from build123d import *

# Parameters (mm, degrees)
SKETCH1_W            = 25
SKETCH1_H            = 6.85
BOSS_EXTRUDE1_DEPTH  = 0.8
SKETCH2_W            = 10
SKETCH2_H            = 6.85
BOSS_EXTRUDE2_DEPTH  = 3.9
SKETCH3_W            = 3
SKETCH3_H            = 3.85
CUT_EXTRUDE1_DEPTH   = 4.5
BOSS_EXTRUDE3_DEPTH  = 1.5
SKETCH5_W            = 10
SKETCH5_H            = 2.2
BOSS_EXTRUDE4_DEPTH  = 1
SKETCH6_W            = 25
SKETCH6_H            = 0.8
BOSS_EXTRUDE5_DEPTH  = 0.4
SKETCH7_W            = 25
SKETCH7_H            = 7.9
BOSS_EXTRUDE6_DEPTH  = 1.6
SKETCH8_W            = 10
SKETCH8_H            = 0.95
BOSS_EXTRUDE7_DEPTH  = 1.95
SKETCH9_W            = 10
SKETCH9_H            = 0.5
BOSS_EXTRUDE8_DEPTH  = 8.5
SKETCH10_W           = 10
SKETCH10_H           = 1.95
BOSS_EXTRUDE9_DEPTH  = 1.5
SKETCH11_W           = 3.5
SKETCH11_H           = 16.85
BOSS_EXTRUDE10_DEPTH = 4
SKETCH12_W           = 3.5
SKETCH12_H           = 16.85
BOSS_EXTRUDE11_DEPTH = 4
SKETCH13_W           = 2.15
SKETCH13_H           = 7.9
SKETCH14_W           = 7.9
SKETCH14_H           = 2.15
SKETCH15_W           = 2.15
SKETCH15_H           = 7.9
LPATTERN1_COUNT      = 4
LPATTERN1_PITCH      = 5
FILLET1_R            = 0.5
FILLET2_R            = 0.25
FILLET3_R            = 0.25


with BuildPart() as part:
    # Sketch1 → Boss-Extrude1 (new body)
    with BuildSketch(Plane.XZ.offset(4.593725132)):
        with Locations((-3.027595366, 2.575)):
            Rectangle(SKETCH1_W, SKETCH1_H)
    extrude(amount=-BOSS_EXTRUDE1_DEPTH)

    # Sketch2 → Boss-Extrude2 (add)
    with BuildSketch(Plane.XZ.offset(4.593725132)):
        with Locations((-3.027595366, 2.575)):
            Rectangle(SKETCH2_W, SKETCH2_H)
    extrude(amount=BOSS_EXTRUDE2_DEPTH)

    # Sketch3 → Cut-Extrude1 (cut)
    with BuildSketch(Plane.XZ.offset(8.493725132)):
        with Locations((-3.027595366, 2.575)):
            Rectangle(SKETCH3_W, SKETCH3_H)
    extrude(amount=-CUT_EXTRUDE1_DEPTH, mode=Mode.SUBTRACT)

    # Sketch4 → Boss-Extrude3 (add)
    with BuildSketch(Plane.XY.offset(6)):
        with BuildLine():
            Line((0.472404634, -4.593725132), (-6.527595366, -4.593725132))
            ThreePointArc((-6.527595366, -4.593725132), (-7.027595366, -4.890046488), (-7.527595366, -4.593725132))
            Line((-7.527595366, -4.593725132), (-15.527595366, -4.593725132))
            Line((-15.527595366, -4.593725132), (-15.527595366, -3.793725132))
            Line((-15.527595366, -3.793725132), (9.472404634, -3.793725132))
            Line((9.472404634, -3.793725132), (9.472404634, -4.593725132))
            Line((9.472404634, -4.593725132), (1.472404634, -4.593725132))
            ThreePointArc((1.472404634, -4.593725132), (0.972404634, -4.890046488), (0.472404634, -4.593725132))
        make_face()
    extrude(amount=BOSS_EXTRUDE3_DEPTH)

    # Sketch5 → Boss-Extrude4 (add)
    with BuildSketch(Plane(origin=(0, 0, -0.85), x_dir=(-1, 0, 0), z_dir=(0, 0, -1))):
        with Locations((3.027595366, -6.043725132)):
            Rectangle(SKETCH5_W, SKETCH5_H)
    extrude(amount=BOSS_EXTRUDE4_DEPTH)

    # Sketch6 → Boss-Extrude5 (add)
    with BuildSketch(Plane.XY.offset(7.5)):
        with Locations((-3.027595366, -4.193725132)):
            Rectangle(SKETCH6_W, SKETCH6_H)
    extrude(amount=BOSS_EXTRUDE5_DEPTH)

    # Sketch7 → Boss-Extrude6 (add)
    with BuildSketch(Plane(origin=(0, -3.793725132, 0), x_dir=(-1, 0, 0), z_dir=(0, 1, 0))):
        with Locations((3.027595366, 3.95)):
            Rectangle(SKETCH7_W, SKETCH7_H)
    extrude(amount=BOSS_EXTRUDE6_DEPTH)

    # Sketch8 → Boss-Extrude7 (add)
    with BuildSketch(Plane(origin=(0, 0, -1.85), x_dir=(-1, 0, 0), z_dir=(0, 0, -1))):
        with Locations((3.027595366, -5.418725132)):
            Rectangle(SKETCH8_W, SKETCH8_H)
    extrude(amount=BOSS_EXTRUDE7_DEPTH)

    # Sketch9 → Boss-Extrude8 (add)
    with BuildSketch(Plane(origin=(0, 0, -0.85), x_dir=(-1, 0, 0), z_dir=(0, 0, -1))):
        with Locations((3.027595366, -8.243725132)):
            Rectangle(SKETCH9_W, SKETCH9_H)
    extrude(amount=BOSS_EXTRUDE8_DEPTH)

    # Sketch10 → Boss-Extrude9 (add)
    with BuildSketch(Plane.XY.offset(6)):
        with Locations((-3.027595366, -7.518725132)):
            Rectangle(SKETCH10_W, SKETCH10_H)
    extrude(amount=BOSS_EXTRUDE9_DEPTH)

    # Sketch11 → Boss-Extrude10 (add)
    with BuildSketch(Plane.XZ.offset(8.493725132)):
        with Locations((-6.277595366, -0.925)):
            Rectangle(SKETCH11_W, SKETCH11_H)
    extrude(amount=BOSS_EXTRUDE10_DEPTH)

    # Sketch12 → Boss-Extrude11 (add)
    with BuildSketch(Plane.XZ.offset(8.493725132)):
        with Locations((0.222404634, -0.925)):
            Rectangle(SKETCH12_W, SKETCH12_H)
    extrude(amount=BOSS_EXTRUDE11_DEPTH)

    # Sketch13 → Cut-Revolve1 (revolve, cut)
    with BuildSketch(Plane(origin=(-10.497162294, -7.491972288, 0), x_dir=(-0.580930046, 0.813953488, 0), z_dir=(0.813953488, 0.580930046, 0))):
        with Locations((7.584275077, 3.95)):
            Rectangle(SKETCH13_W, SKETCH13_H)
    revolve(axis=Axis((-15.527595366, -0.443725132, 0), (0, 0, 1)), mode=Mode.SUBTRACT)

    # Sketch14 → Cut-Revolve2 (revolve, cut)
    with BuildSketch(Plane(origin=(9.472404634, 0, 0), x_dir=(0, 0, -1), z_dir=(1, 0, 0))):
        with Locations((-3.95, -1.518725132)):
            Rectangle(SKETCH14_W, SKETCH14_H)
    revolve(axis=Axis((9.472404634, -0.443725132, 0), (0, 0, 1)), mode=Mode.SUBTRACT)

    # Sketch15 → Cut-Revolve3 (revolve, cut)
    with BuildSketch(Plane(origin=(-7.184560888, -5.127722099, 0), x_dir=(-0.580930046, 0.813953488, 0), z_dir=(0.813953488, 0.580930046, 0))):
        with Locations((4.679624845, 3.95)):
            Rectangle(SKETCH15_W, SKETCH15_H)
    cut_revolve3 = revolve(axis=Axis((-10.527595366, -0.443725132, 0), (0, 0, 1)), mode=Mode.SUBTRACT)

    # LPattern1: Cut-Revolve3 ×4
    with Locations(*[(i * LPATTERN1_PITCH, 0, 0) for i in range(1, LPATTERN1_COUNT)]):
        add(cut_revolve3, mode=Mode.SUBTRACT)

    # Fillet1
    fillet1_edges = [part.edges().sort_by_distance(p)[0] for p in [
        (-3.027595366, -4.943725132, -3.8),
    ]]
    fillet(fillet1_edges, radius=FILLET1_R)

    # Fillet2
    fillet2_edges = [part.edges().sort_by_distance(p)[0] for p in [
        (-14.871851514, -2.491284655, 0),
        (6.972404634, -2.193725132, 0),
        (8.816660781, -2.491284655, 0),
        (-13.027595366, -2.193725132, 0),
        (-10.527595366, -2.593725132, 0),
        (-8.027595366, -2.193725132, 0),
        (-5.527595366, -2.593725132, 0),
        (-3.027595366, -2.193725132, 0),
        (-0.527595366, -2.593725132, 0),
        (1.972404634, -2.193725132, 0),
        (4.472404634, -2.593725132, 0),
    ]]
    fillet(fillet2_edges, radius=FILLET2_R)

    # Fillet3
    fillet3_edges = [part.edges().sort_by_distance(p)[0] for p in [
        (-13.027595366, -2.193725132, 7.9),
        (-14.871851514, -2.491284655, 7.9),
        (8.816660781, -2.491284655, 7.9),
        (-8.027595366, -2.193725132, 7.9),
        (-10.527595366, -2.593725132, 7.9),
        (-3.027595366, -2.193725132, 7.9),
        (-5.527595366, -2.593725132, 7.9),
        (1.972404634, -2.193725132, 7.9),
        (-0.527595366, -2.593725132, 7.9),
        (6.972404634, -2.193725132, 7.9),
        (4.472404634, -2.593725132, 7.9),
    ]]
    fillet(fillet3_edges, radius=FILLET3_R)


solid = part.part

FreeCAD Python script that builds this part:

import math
import FreeCAD as App
import Part
import Sketcher

V = App.Vector
Q = App.Units.Quantity


def edges_at(feature, points):
    """Names of the edges that pass closest to the given points."""
    edges = feature.Shape.Edges
    near = lambda p: min(range(len(edges)), key=lambda i: edges[i].distToShape(Part.Vertex(*p))[0])
    return sorted({f"Edge{near(p) + 1}" for p in points})


def add_polygon(sketch, points):
    """Adds a closed chain of lines whose ends are joined by coincident constraints."""
    first, n = sketch.GeometryCount, len(points)
    for a, b in zip(points, points[1:] + points[:1]):
        sketch.addGeometry(Part.LineSegment(App.Vector(*a, 0), App.Vector(*b, 0)), False)
    for i in range(n):
        sketch.addConstraint(Sketcher.Constraint("Coincident", first + i, 2, first + (i + 1) % n, 1))

doc = App.newDocument("Part")
body = doc.addObject("PartDesign::Body", "Body")

sketch1 = body.newObject("Sketcher::SketchObject", "Sketch")
sketch1.AttachmentSupport = (doc.getObject("XZ_Plane"), [""])
sketch1.MapMode = "FlatFace"
sketch1.AttachmentOffset = App.Placement(V(0, 0, 4.593725), App.Rotation())
add_polygon(sketch1, [(-15.527595, 6), (-15.527595, -0.85), (9.472405, -0.85), (9.472405, 6)])
sketch1.addConstraint([
    Sketcher.Constraint("Vertical", 0),
    Sketcher.Constraint("Horizontal", 1),
    Sketcher.Constraint("Vertical", 2),
    Sketcher.Constraint("Horizontal", 3),
    Sketcher.Constraint("DistanceX", 1, 1, 1, 2, Q("25 mm")),
    Sketcher.Constraint("DistanceY", -1, 1, 2, 2, Q("6 mm")),
    Sketcher.Constraint("DistanceY", 0, 2, 0, 1, Q("6.85 mm")),
    Sketcher.Constraint("DistanceX", 0, 2, -1, 1, Q("15.527595 mm")),
])
pad1 = body.newObject("PartDesign::Pad", "Pad")
pad1.Profile = sketch1
pad1.Length = 0.8
pad1.Reversed = True

sketch2 = body.newObject("Sketcher::SketchObject", "Sketch001")
sketch2.AttachmentSupport = (doc.getObject("XZ_Plane"), [""])
sketch2.MapMode = "FlatFace"
sketch2.AttachmentOffset = App.Placement(V(0, 0, 4.593725), App.Rotation())
add_polygon(sketch2, [(-8.027595, 6), (-8.027595, -0.85), (1.972405, -0.85), (1.972405, 6)])
sketch2.addConstraint([
    Sketcher.Constraint("Vertical", 0),
    Sketcher.Constraint("Horizontal", 1),
    Sketcher.Constraint("Vertical", 2),
    Sketcher.Constraint("Horizontal", 3),
    Sketcher.Constraint("DistanceX", 1, 1, 1, 2, Q("10 mm")),
    Sketcher.Constraint("DistanceY", -1, 1, 2, 2, Q("6 mm")),
    Sketcher.Constraint("DistanceY", 0, 2, 0, 1, Q("6.85 mm")),
    Sketcher.Constraint("DistanceX", 0, 2, -1, 1, Q("8.027595 mm")),
])
pad2 = body.newObject("PartDesign::Pad", "Pad001")
pad2.Profile = sketch2
pad2.Length = 3.9

sketch3 = body.newObject("Sketcher::SketchObject", "Sketch002")
sketch3.AttachmentSupport = (doc.getObject("XZ_Plane"), [""])
sketch3.MapMode = "FlatFace"
sketch3.AttachmentOffset = App.Placement(V(0, 0, 8.493725), App.Rotation())
add_polygon(sketch3, [(-4.527595, 4.5), (-4.527595, 0.65), (-1.527595, 0.65), (-1.527595, 4.5)])
sketch3.addConstraint([
    Sketcher.Constraint("Vertical", 0),
    Sketcher.Constraint("Horizontal", 1),
    Sketcher.Constraint("Vertical", 2),
    Sketcher.Constraint("Horizontal", 3),
    Sketcher.Constraint("DistanceX", 1, 1, 1, 2, Q("3 mm")),
    Sketcher.Constraint("DistanceY", 0, 2, 0, 1, Q("3.85 mm")),
    Sketcher.Constraint("DistanceY", -1, 1, 2, 2, Q("4.5 mm")),
    Sketcher.Constraint("DistanceX", 0, 2, -1, 1, Q("4.527595 mm")),
])
pocket1 = body.newObject("PartDesign::Pocket", "Pocket")
pocket1.Profile = sketch3
pocket1.Length = 4.5

sketch4 = body.newObject("Sketcher::SketchObject", "Sketch003")
sketch4.AttachmentSupport = (doc.getObject("XY_Plane"), [""])
sketch4.MapMode = "FlatFace"
sketch4.AttachmentOffset = App.Placement(V(0, 0, 6), App.Rotation())
sketch4.addGeometry([
    Part.LineSegment(V(-6.527595, -4.593725, 0), V(0.472405, -4.593725, 0)),
    Part.ArcOfCircle(Part.Circle(V(0.972405, -4.320046, 0), V(0, 0, 1), 0.57), math.radians(-151.305586), math.radians(-28.694414)),
    Part.LineSegment(V(1.472405, -4.593725, 0), V(9.472405, -4.593725, 0)),
    Part.LineSegment(V(9.472405, -4.593725, 0), V(9.472405, -3.793725, 0)),
    Part.LineSegment(V(9.472405, -3.793725, 0), V(-15.527595, -3.793725, 0)),
    Part.LineSegment(V(-15.527595, -3.793725, 0), V(-15.527595, -4.593725, 0)),
    Part.LineSegment(V(-15.527595, -4.593725, 0), V(-7.527595, -4.593725, 0)),
    Part.ArcOfCircle(Part.Circle(V(-7.027595, -4.320046, 0), V(0, 0, 1), 0.57), math.radians(-151.305586), math.radians(-28.694414)),
], False)
sketch4.addConstraint([
    Sketcher.Constraint("Coincident", 0, 2, 1, 1),
    Sketcher.Constraint("Coincident", 1, 2, 2, 1),
    Sketcher.Constraint("Coincident", 2, 2, 3, 1),
    Sketcher.Constraint("Coincident", 3, 2, 4, 1),
    Sketcher.Constraint("Coincident", 4, 2, 5, 1),
    Sketcher.Constraint("Coincident", 5, 2, 6, 1),
    Sketcher.Constraint("Coincident", 6, 2, 7, 1),
    Sketcher.Constraint("Coincident", 7, 2, 0, 1),
    Sketcher.Constraint("Horizontal", 0),
    Sketcher.Constraint("Horizontal", 2),
    Sketcher.Constraint("Vertical", 3),
    Sketcher.Constraint("Horizontal", 4),
    Sketcher.Constraint("Vertical", 5),
    Sketcher.Constraint("Horizontal", 6),
    Sketcher.Constraint("Equal", 1, 7),
    Sketcher.Constraint("Horizontal", 1, 3, 7, 3),
    Sketcher.Constraint("Horizontal", 0, 2, 1, 2),
    Sketcher.Constraint("Horizontal", 2, 2, 5, 2),
    Sketcher.Constraint("Equal", 2, 6),
    Sketcher.Constraint("DistanceX", 0, 1, 0, 2, Q("7 mm")),
    Sketcher.Constraint("DistanceX", 2, 1, 2, 2, Q("8 mm")),
    Sketcher.Constraint("DistanceX", 4, 2, 4, 1, Q("25 mm")),
    Sketcher.Constraint("Radius", 1, Q("0.57 mm")),
    Sketcher.Constraint("DistanceY", 3, 1, 3, 2, Q("0.8 mm")),
    Sketcher.Constraint("DistanceX", -1, 1, 1, 3, Q("0.972405 mm")),
    Sketcher.Constraint("DistanceY", 1, 3, -1, 1, Q("4.320046 mm")),
])
pad3 = body.newObject("PartDesign::Pad", "Pad002")
pad3.Profile = sketch4
pad3.Length = 1.5

sketch5 = body.newObject("Sketcher::SketchObject", "Sketch004")
sketch5.AttachmentSupport = (doc.getObject("XY_Plane"), [""])
sketch5.MapMode = "FlatFace"
sketch5.AttachmentOffset = App.Placement(V(0, 0, -0.85), App.Rotation())
add_polygon(sketch5, [(1.972405, -4.943725), (1.972405, -7.143725), (-8.027595, -7.143725), (-8.027595, -4.943725)])
sketch5.addConstraint([
    Sketcher.Constraint("Vertical", 0),
    Sketcher.Constraint("Horizontal", 1),
    Sketcher.Constraint("Vertical", 2),
    Sketcher.Constraint("Horizontal", 3),
    Sketcher.Constraint("DistanceX", 1, 2, 1, 1, Q("10 mm")),
    Sketcher.Constraint("DistanceY", 0, 2, 0, 1, Q("2.2 mm")),
    Sketcher.Constraint("DistanceX", -1, 1, 0, 2, Q("1.972405 mm")),
    Sketcher.Constraint("DistanceY", 0, 2, -1, 1, Q("7.143725 mm")),
])
pad4 = body.newObject("PartDesign::Pad", "Pad003")
pad4.Profile = sketch5
pad4.Length = 1
pad4.Reversed = True

sketch6 = body.newObject("Sketcher::SketchObject", "Sketch005")
sketch6.AttachmentSupport = (doc.getObject("XY_Plane"), [""])
sketch6.MapMode = "FlatFace"
sketch6.AttachmentOffset = App.Placement(V(0, 0, 7.5), App.Rotation())
add_polygon(sketch6, [(-15.527595, -3.793725), (-15.527595, -4.593725), (9.472405, -4.593725), (9.472405, -3.793725)])
sketch6.addConstraint([
    Sketcher.Constraint("Vertical", 0),
    Sketcher.Constraint("Horizontal", 1),
    Sketcher.Constraint("Vertical", 2),
    Sketcher.Constraint("Horizontal", 3),
    Sketcher.Constraint("DistanceX", 1, 1, 1, 2, Q("25 mm")),
    Sketcher.Constraint("DistanceY", 0, 2, 0, 1, Q("0.8 mm")),
    Sketcher.Constraint("DistanceX", 0, 2, -1, 1, Q("15.527595 mm")),
    Sketcher.Constraint("DistanceY", 0, 2, -1, 1, Q("4.593725 mm")),
])
pad5 = body.newObject("PartDesign::Pad", "Pad004")
pad5.Profile = sketch6
pad5.Length = 0.4

sketch7 = body.newObject("Sketcher::SketchObject", "Sketch006")
sketch7.AttachmentSupport = (doc.getObject("XZ_Plane"), [""])
sketch7.MapMode = "FlatFace"
sketch7.AttachmentOffset = App.Placement(V(0, 0, 3.793725), App.Rotation())
add_polygon(sketch7, [(9.472405, 7.9), (9.472405, 0), (-15.527595, 0), (-15.527595, 7.9)])
sketch7.addConstraint([
    Sketcher.Constraint("Vertical", 0),
    Sketcher.Constraint("Horizontal", 1),
    Sketcher.Constraint("Vertical", 2),
    Sketcher.Constraint("Horizontal", 3),
    Sketcher.Constraint("PointOnObject", 0, 2, -1),
    Sketcher.Constraint("DistanceX", 1, 2, 1, 1, Q("25 mm")),
    Sketcher.Constraint("DistanceY", 0, 2, 0, 1, Q("7.9 mm")),
    Sketcher.Constraint("DistanceX", -1, 1, 0, 2, Q("9.472405 mm")),
])
pad6 = body.newObject("PartDesign::Pad", "Pad005")
pad6.Profile = sketch7
pad6.Length = 1.6
pad6.Reversed = True

sketch8 = body.newObject("Sketcher::SketchObject", "Sketch007")
sketch8.AttachmentSupport = (doc.getObject("XY_Plane"), [""])
sketch8.MapMode = "FlatFace"
sketch8.AttachmentOffset = App.Placement(V(0, 0, -1.85), App.Rotation())
add_polygon(sketch8, [(1.972405, -4.943725), (1.972405, -5.893725), (-8.027595, -5.893725), (-8.027595, -4.943725)])
sketch8.addConstraint([
    Sketcher.Constraint("Vertical", 0),
    Sketcher.Constraint("Horizontal", 1),
    Sketcher.Constraint("Vertical", 2),
    Sketcher.Constraint("Horizontal", 3),
    Sketcher.Constraint("DistanceX", 1, 2, 1, 1, Q("10 mm")),
    Sketcher.Constraint("DistanceY", 0, 2, 0, 1, Q("0.95 mm")),
    Sketcher.Constraint("DistanceX", -1, 1, 0, 2, Q("1.972405 mm")),
    Sketcher.Constraint("DistanceY", 0, 2, -1, 1, Q("5.893725 mm")),
])
pad7 = body.newObject("PartDesign::Pad", "Pad006")
pad7.Profile = sketch8
pad7.Length = 1.95
pad7.Reversed = True

sketch9 = body.newObject("Sketcher::SketchObject", "Sketch008")
sketch9.AttachmentSupport = (doc.getObject("XY_Plane"), [""])
sketch9.MapMode = "FlatFace"
sketch9.AttachmentOffset = App.Placement(V(0, 0, -0.85), App.Rotation())
add_polygon(sketch9, [(1.972405, -7.993725), (1.972405, -8.493725), (-8.027595, -8.493725), (-8.027595, -7.993725)])
sketch9.addConstraint([
    Sketcher.Constraint("Vertical", 0),
    Sketcher.Constraint("Horizontal", 1),
    Sketcher.Constraint("Vertical", 2),
    Sketcher.Constraint("Horizontal", 3),
    Sketcher.Constraint("DistanceX", 1, 2, 1, 1, Q("10 mm")),
    Sketcher.Constraint("DistanceY", 0, 2, 0, 1, Q("0.5 mm")),
    Sketcher.Constraint("DistanceX", -1, 1, 0, 2, Q("1.972405 mm")),
    Sketcher.Constraint("DistanceY", 0, 2, -1, 1, Q("8.493725 mm")),
])
pad8 = body.newObject("PartDesign::Pad", "Pad007")
pad8.Profile = sketch9
pad8.Length = 8.5
pad8.Reversed = True

sketch10 = body.newObject("Sketcher::SketchObject", "Sketch009")
sketch10.AttachmentSupport = (doc.getObject("XY_Plane"), [""])
sketch10.MapMode = "FlatFace"
sketch10.AttachmentOffset = App.Placement(V(0, 0, 6), App.Rotation())
add_polygon(sketch10, [(-8.027595, -6.543725), (-8.027595, -8.493725), (1.972405, -8.493725), (1.972405, -6.543725)])
sketch10.addConstraint([
    Sketcher.Constraint("Vertical", 0),
    Sketcher.Constraint("Horizontal", 1),
    Sketcher.Constraint("Vertical", 2),
    Sketcher.Constraint("Horizontal", 3),
    Sketcher.Constraint("DistanceX", 1, 1, 1, 2, Q("10 mm")),
    Sketcher.Constraint("DistanceY", 0, 2, 0, 1, Q("1.95 mm")),
    Sketcher.Constraint("DistanceX", 0, 2, -1, 1, Q("8.027595 mm")),
    Sketcher.Constraint("DistanceY", 0, 2, -1, 1, Q("8.493725 mm")),
])
pad9 = body.newObject("PartDesign::Pad", "Pad008")
pad9.Profile = sketch10
pad9.Length = 1.5

sketch11 = body.newObject("Sketcher::SketchObject", "Sketch010")
sketch11.AttachmentSupport = (doc.getObject("XZ_Plane"), [""])
sketch11.MapMode = "FlatFace"
sketch11.AttachmentOffset = App.Placement(V(0, 0, 8.493725), App.Rotation())
add_polygon(sketch11, [(-8.027595, 7.5), (-8.027595, -9.35), (-4.527595, -9.35), (-4.527595, 7.5)])
sketch11.addConstraint([
    Sketcher.Constraint("Vertical", 0),
    Sketcher.Constraint("Horizontal", 1),
    Sketcher.Constraint("Vertical", 2),
    Sketcher.Constraint("Horizontal", 3),
    Sketcher.Constraint("DistanceX", 1, 1, 1, 2, Q("3.5 mm")),
    Sketcher.Constraint("DistanceY", 0, 2, 0, 1, Q("16.85 mm")),
    Sketcher.Constraint("DistanceY", -1, 1, 2, 2, Q("7.5 mm")),
    Sketcher.Constraint("DistanceX", 0, 2, -1, 1, Q("8.027595 mm")),
])
pad10 = body.newObject("PartDesign::Pad", "Pad009")
pad10.Profile = sketch11
pad10.Length = 4

sketch12 = body.newObject("Sketcher::SketchObject", "Sketch011")
sketch12.AttachmentSupport = (doc.getObject("XZ_Plane"), [""])
sketch12.MapMode = "FlatFace"
sketch12.AttachmentOffset = App.Placement(V(0, 0, 8.493725), App.Rotation())
add_polygon(sketch12, [(-1.527595, 7.5), (-1.527595, -9.35), (1.972405, -9.35), (1.972405, 7.5)])
sketch12.addConstraint([
    Sketcher.Constraint("Vertical", 0),
    Sketcher.Constraint("Horizontal", 1),
    Sketcher.Constraint("Vertical", 2),
    Sketcher.Constraint("Horizontal", 3),
    Sketcher.Constraint("DistanceX", 1, 1, 1, 2, Q("3.5 mm")),
    Sketcher.Constraint("DistanceY", 0, 2, 0, 1, Q("16.85 mm")),
    Sketcher.Constraint("DistanceY", -1, 1, 2, 2, Q("7.5 mm")),
    Sketcher.Constraint("DistanceX", 0, 2, -1, 1, Q("1.527595 mm")),
])
pad11 = body.newObject("PartDesign::Pad", "Pad010")
pad11.Profile = sketch12
pad11.Length = 4

sketch13 = body.newObject("Sketcher::SketchObject", "Sketch012")
sketch13.Placement = App.Placement(V(-10.497162, -7.491972, 0), App.Rotation(V(-0.580930046, 0.813953488, 0), V(0, 0, 0.999999999), V(0.813953488, 0.580930046, 0), "ZXY"))
add_polygon(sketch13, [(6.509275, 7.9), (6.509275, 0), (8.659275, 0), (8.659275, 7.9)])
sketch13.addGeometry(Part.LineSegment(V(8.659275, 0, 0), V(8.659275, 7.9, 0)), True)
sketch13.addConstraint([
    Sketcher.Constraint("Vertical", 0),
    Sketcher.Constraint("Horizontal", 1),
    Sketcher.Constraint("Vertical", 2),
    Sketcher.Constraint("Horizontal", 3),
    Sketcher.Constraint("Vertical", 4),
    Sketcher.Constraint("Coincident", 4, 1, 1, 2),
    Sketcher.Constraint("PointOnObject", 0, 2, -1),
    Sketcher.Constraint("Horizontal", 3, 2, 4, 2),
    Sketcher.Constraint("DistanceY", 0, 2, 0, 1, Q("7.9 mm")),
    Sketcher.Constraint("DistanceX", 1, 1, 1, 2, Q("2.15 mm")),
    Sketcher.Constraint("DistanceX", -1, 1, 0, 2, Q("6.509275 mm")),
])
groove = body.newObject("PartDesign::Groove", "Groove")
groove.Profile = sketch13
groove.ReferenceAxis = (sketch13, ["Axis0"])
groove.Angle = 360

sketch14 = body.newObject("Sketcher::SketchObject", "Sketch013")
sketch14.AttachmentSupport = (doc.getObject("YZ_Plane"), [""])
sketch14.MapMode = "FlatFace"
sketch14.AttachmentOffset = App.Placement(V(0, 0, 9.472405), App.Rotation())
add_polygon(sketch14, [(-0.443725, 7.9), (-2.593725, 7.9), (-2.593725, 0), (-0.443725, 0)])
sketch14.addGeometry(Part.LineSegment(V(-0.443725, 0, 0), V(-0.443725, 7.9, 0)), True)
sketch14.addConstraint([
    Sketcher.Constraint("Horizontal", 0),
    Sketcher.Constraint("Vertical", 1),
    Sketcher.Constraint("Horizontal", 2),
    Sketcher.Constraint("Vertical", 3),
    Sketcher.Constraint("Vertical", 4),
    Sketcher.Constraint("Coincident", 4, 1, 2, 2),
    Sketcher.Constraint("PointOnObject", 1, 2, -1),
    Sketcher.Constraint("Horizontal", 0, 2, 4, 2),
    Sketcher.Constraint("DistanceY", 1, 2, 1, 1, Q("7.9 mm")),
    Sketcher.Constraint("DistanceX", 0, 2, 0, 1, Q("2.15 mm")),
    Sketcher.Constraint("DistanceX", 0, 2, -1, 1, Q("2.593725 mm")),
])
groove2 = body.newObject("PartDesign::Groove", "Groove001")
groove2.Profile = sketch14
groove2.ReferenceAxis = (sketch14, ["Axis0"])
groove2.Angle = 360

sketch15 = body.newObject("Sketcher::SketchObject", "Sketch014")
sketch15.Placement = App.Placement(V(-7.184561, -5.127722, 0), App.Rotation(V(-0.580930046, 0.813953488, 0), V(0, 0, 0.999999999), V(0.813953488, 0.580930046, 0), "ZXY"))
add_polygon(sketch15, [(3.604625, 7.9), (3.604625, 0), (5.754625, 0), (5.754625, 7.9)])
sketch15.addGeometry(Part.LineSegment(V(5.754625, 0, 0), V(5.754625, 7.9, 0)), True)
sketch15.addConstraint([
    Sketcher.Constraint("Vertical", 0),
    Sketcher.Constraint("Horizontal", 1),
    Sketcher.Constraint("Vertical", 2),
    Sketcher.Constraint("Horizontal", 3),
    Sketcher.Constraint("Vertical", 4),
    Sketcher.Constraint("Coincident", 4, 1, 1, 2),
    Sketcher.Constraint("PointOnObject", 0, 2, -1),
    Sketcher.Constraint("Horizontal", 3, 2, 4, 2),
    Sketcher.Constraint("DistanceY", 0, 2, 0, 1, Q("7.9 mm")),
    Sketcher.Constraint("DistanceX", 1, 1, 1, 2, Q("2.15 mm")),
    Sketcher.Constraint("DistanceX", -1, 1, 0, 2, Q("3.604625 mm")),
])
groove3 = body.newObject("PartDesign::Groove", "Groove002")
groove3.Profile = sketch15
groove3.ReferenceAxis = (sketch15, ["Axis0"])
groove3.Angle = 360
doc.recompute()

linearpattern = body.newObject("PartDesign::LinearPattern", "LinearPattern")
linearpattern.Originals = [groove3]
linearpattern.Direction = (doc.getObject("X_Axis"), [""])
linearpattern.Mode = "offset"
linearpattern.Offset = 5
linearpattern.Occurrences = 4
body.Tip = linearpattern
doc.recompute()

fillet = body.newObject("PartDesign::Fillet", "Fillet")
fillet.Base = (linearpattern, edges_at(linearpattern, [(-3.028, -4.944, -3.8)]))
fillet.Radius = 0.5
doc.recompute()

fillet2 = body.newObject("PartDesign::Fillet", "Fillet001")
fillet2.Base = (fillet, edges_at(fillet, [
    (-14.872, -2.491, 0),
    (6.972, -2.194, 0),
    (8.817, -2.491, 0),
    (-13.028, -2.194, 0),
    (-10.528, -2.594, 0),
    (-8.028, -2.194, 0),
    (-5.528, -2.594, 0),
    (-3.028, -2.194, 0),
    (-0.528, -2.594, 0),
    (1.972, -2.194, 0),
    (4.472, -2.594, 0),
]))
fillet2.Radius = 0.25
doc.recompute()

fillet3 = body.newObject("PartDesign::Fillet", "Fillet002")
fillet3.Base = (fillet2, edges_at(fillet2, [
    (-13.028, -2.194, 7.9),
    (-14.872, -2.491, 7.9),
    (8.817, -2.491, 7.9),
    (-8.028, -2.194, 7.9),
    (-10.528, -2.594, 7.9),
    (-3.028, -2.194, 7.9),
    (-5.528, -2.594, 7.9),
    (1.972, -2.194, 7.9),
    (-0.528, -2.594, 7.9),
    (6.972, -2.194, 7.9),
    (4.472, -2.594, 7.9),
]))
fillet3.Radius = 0.25

doc.recompute()
